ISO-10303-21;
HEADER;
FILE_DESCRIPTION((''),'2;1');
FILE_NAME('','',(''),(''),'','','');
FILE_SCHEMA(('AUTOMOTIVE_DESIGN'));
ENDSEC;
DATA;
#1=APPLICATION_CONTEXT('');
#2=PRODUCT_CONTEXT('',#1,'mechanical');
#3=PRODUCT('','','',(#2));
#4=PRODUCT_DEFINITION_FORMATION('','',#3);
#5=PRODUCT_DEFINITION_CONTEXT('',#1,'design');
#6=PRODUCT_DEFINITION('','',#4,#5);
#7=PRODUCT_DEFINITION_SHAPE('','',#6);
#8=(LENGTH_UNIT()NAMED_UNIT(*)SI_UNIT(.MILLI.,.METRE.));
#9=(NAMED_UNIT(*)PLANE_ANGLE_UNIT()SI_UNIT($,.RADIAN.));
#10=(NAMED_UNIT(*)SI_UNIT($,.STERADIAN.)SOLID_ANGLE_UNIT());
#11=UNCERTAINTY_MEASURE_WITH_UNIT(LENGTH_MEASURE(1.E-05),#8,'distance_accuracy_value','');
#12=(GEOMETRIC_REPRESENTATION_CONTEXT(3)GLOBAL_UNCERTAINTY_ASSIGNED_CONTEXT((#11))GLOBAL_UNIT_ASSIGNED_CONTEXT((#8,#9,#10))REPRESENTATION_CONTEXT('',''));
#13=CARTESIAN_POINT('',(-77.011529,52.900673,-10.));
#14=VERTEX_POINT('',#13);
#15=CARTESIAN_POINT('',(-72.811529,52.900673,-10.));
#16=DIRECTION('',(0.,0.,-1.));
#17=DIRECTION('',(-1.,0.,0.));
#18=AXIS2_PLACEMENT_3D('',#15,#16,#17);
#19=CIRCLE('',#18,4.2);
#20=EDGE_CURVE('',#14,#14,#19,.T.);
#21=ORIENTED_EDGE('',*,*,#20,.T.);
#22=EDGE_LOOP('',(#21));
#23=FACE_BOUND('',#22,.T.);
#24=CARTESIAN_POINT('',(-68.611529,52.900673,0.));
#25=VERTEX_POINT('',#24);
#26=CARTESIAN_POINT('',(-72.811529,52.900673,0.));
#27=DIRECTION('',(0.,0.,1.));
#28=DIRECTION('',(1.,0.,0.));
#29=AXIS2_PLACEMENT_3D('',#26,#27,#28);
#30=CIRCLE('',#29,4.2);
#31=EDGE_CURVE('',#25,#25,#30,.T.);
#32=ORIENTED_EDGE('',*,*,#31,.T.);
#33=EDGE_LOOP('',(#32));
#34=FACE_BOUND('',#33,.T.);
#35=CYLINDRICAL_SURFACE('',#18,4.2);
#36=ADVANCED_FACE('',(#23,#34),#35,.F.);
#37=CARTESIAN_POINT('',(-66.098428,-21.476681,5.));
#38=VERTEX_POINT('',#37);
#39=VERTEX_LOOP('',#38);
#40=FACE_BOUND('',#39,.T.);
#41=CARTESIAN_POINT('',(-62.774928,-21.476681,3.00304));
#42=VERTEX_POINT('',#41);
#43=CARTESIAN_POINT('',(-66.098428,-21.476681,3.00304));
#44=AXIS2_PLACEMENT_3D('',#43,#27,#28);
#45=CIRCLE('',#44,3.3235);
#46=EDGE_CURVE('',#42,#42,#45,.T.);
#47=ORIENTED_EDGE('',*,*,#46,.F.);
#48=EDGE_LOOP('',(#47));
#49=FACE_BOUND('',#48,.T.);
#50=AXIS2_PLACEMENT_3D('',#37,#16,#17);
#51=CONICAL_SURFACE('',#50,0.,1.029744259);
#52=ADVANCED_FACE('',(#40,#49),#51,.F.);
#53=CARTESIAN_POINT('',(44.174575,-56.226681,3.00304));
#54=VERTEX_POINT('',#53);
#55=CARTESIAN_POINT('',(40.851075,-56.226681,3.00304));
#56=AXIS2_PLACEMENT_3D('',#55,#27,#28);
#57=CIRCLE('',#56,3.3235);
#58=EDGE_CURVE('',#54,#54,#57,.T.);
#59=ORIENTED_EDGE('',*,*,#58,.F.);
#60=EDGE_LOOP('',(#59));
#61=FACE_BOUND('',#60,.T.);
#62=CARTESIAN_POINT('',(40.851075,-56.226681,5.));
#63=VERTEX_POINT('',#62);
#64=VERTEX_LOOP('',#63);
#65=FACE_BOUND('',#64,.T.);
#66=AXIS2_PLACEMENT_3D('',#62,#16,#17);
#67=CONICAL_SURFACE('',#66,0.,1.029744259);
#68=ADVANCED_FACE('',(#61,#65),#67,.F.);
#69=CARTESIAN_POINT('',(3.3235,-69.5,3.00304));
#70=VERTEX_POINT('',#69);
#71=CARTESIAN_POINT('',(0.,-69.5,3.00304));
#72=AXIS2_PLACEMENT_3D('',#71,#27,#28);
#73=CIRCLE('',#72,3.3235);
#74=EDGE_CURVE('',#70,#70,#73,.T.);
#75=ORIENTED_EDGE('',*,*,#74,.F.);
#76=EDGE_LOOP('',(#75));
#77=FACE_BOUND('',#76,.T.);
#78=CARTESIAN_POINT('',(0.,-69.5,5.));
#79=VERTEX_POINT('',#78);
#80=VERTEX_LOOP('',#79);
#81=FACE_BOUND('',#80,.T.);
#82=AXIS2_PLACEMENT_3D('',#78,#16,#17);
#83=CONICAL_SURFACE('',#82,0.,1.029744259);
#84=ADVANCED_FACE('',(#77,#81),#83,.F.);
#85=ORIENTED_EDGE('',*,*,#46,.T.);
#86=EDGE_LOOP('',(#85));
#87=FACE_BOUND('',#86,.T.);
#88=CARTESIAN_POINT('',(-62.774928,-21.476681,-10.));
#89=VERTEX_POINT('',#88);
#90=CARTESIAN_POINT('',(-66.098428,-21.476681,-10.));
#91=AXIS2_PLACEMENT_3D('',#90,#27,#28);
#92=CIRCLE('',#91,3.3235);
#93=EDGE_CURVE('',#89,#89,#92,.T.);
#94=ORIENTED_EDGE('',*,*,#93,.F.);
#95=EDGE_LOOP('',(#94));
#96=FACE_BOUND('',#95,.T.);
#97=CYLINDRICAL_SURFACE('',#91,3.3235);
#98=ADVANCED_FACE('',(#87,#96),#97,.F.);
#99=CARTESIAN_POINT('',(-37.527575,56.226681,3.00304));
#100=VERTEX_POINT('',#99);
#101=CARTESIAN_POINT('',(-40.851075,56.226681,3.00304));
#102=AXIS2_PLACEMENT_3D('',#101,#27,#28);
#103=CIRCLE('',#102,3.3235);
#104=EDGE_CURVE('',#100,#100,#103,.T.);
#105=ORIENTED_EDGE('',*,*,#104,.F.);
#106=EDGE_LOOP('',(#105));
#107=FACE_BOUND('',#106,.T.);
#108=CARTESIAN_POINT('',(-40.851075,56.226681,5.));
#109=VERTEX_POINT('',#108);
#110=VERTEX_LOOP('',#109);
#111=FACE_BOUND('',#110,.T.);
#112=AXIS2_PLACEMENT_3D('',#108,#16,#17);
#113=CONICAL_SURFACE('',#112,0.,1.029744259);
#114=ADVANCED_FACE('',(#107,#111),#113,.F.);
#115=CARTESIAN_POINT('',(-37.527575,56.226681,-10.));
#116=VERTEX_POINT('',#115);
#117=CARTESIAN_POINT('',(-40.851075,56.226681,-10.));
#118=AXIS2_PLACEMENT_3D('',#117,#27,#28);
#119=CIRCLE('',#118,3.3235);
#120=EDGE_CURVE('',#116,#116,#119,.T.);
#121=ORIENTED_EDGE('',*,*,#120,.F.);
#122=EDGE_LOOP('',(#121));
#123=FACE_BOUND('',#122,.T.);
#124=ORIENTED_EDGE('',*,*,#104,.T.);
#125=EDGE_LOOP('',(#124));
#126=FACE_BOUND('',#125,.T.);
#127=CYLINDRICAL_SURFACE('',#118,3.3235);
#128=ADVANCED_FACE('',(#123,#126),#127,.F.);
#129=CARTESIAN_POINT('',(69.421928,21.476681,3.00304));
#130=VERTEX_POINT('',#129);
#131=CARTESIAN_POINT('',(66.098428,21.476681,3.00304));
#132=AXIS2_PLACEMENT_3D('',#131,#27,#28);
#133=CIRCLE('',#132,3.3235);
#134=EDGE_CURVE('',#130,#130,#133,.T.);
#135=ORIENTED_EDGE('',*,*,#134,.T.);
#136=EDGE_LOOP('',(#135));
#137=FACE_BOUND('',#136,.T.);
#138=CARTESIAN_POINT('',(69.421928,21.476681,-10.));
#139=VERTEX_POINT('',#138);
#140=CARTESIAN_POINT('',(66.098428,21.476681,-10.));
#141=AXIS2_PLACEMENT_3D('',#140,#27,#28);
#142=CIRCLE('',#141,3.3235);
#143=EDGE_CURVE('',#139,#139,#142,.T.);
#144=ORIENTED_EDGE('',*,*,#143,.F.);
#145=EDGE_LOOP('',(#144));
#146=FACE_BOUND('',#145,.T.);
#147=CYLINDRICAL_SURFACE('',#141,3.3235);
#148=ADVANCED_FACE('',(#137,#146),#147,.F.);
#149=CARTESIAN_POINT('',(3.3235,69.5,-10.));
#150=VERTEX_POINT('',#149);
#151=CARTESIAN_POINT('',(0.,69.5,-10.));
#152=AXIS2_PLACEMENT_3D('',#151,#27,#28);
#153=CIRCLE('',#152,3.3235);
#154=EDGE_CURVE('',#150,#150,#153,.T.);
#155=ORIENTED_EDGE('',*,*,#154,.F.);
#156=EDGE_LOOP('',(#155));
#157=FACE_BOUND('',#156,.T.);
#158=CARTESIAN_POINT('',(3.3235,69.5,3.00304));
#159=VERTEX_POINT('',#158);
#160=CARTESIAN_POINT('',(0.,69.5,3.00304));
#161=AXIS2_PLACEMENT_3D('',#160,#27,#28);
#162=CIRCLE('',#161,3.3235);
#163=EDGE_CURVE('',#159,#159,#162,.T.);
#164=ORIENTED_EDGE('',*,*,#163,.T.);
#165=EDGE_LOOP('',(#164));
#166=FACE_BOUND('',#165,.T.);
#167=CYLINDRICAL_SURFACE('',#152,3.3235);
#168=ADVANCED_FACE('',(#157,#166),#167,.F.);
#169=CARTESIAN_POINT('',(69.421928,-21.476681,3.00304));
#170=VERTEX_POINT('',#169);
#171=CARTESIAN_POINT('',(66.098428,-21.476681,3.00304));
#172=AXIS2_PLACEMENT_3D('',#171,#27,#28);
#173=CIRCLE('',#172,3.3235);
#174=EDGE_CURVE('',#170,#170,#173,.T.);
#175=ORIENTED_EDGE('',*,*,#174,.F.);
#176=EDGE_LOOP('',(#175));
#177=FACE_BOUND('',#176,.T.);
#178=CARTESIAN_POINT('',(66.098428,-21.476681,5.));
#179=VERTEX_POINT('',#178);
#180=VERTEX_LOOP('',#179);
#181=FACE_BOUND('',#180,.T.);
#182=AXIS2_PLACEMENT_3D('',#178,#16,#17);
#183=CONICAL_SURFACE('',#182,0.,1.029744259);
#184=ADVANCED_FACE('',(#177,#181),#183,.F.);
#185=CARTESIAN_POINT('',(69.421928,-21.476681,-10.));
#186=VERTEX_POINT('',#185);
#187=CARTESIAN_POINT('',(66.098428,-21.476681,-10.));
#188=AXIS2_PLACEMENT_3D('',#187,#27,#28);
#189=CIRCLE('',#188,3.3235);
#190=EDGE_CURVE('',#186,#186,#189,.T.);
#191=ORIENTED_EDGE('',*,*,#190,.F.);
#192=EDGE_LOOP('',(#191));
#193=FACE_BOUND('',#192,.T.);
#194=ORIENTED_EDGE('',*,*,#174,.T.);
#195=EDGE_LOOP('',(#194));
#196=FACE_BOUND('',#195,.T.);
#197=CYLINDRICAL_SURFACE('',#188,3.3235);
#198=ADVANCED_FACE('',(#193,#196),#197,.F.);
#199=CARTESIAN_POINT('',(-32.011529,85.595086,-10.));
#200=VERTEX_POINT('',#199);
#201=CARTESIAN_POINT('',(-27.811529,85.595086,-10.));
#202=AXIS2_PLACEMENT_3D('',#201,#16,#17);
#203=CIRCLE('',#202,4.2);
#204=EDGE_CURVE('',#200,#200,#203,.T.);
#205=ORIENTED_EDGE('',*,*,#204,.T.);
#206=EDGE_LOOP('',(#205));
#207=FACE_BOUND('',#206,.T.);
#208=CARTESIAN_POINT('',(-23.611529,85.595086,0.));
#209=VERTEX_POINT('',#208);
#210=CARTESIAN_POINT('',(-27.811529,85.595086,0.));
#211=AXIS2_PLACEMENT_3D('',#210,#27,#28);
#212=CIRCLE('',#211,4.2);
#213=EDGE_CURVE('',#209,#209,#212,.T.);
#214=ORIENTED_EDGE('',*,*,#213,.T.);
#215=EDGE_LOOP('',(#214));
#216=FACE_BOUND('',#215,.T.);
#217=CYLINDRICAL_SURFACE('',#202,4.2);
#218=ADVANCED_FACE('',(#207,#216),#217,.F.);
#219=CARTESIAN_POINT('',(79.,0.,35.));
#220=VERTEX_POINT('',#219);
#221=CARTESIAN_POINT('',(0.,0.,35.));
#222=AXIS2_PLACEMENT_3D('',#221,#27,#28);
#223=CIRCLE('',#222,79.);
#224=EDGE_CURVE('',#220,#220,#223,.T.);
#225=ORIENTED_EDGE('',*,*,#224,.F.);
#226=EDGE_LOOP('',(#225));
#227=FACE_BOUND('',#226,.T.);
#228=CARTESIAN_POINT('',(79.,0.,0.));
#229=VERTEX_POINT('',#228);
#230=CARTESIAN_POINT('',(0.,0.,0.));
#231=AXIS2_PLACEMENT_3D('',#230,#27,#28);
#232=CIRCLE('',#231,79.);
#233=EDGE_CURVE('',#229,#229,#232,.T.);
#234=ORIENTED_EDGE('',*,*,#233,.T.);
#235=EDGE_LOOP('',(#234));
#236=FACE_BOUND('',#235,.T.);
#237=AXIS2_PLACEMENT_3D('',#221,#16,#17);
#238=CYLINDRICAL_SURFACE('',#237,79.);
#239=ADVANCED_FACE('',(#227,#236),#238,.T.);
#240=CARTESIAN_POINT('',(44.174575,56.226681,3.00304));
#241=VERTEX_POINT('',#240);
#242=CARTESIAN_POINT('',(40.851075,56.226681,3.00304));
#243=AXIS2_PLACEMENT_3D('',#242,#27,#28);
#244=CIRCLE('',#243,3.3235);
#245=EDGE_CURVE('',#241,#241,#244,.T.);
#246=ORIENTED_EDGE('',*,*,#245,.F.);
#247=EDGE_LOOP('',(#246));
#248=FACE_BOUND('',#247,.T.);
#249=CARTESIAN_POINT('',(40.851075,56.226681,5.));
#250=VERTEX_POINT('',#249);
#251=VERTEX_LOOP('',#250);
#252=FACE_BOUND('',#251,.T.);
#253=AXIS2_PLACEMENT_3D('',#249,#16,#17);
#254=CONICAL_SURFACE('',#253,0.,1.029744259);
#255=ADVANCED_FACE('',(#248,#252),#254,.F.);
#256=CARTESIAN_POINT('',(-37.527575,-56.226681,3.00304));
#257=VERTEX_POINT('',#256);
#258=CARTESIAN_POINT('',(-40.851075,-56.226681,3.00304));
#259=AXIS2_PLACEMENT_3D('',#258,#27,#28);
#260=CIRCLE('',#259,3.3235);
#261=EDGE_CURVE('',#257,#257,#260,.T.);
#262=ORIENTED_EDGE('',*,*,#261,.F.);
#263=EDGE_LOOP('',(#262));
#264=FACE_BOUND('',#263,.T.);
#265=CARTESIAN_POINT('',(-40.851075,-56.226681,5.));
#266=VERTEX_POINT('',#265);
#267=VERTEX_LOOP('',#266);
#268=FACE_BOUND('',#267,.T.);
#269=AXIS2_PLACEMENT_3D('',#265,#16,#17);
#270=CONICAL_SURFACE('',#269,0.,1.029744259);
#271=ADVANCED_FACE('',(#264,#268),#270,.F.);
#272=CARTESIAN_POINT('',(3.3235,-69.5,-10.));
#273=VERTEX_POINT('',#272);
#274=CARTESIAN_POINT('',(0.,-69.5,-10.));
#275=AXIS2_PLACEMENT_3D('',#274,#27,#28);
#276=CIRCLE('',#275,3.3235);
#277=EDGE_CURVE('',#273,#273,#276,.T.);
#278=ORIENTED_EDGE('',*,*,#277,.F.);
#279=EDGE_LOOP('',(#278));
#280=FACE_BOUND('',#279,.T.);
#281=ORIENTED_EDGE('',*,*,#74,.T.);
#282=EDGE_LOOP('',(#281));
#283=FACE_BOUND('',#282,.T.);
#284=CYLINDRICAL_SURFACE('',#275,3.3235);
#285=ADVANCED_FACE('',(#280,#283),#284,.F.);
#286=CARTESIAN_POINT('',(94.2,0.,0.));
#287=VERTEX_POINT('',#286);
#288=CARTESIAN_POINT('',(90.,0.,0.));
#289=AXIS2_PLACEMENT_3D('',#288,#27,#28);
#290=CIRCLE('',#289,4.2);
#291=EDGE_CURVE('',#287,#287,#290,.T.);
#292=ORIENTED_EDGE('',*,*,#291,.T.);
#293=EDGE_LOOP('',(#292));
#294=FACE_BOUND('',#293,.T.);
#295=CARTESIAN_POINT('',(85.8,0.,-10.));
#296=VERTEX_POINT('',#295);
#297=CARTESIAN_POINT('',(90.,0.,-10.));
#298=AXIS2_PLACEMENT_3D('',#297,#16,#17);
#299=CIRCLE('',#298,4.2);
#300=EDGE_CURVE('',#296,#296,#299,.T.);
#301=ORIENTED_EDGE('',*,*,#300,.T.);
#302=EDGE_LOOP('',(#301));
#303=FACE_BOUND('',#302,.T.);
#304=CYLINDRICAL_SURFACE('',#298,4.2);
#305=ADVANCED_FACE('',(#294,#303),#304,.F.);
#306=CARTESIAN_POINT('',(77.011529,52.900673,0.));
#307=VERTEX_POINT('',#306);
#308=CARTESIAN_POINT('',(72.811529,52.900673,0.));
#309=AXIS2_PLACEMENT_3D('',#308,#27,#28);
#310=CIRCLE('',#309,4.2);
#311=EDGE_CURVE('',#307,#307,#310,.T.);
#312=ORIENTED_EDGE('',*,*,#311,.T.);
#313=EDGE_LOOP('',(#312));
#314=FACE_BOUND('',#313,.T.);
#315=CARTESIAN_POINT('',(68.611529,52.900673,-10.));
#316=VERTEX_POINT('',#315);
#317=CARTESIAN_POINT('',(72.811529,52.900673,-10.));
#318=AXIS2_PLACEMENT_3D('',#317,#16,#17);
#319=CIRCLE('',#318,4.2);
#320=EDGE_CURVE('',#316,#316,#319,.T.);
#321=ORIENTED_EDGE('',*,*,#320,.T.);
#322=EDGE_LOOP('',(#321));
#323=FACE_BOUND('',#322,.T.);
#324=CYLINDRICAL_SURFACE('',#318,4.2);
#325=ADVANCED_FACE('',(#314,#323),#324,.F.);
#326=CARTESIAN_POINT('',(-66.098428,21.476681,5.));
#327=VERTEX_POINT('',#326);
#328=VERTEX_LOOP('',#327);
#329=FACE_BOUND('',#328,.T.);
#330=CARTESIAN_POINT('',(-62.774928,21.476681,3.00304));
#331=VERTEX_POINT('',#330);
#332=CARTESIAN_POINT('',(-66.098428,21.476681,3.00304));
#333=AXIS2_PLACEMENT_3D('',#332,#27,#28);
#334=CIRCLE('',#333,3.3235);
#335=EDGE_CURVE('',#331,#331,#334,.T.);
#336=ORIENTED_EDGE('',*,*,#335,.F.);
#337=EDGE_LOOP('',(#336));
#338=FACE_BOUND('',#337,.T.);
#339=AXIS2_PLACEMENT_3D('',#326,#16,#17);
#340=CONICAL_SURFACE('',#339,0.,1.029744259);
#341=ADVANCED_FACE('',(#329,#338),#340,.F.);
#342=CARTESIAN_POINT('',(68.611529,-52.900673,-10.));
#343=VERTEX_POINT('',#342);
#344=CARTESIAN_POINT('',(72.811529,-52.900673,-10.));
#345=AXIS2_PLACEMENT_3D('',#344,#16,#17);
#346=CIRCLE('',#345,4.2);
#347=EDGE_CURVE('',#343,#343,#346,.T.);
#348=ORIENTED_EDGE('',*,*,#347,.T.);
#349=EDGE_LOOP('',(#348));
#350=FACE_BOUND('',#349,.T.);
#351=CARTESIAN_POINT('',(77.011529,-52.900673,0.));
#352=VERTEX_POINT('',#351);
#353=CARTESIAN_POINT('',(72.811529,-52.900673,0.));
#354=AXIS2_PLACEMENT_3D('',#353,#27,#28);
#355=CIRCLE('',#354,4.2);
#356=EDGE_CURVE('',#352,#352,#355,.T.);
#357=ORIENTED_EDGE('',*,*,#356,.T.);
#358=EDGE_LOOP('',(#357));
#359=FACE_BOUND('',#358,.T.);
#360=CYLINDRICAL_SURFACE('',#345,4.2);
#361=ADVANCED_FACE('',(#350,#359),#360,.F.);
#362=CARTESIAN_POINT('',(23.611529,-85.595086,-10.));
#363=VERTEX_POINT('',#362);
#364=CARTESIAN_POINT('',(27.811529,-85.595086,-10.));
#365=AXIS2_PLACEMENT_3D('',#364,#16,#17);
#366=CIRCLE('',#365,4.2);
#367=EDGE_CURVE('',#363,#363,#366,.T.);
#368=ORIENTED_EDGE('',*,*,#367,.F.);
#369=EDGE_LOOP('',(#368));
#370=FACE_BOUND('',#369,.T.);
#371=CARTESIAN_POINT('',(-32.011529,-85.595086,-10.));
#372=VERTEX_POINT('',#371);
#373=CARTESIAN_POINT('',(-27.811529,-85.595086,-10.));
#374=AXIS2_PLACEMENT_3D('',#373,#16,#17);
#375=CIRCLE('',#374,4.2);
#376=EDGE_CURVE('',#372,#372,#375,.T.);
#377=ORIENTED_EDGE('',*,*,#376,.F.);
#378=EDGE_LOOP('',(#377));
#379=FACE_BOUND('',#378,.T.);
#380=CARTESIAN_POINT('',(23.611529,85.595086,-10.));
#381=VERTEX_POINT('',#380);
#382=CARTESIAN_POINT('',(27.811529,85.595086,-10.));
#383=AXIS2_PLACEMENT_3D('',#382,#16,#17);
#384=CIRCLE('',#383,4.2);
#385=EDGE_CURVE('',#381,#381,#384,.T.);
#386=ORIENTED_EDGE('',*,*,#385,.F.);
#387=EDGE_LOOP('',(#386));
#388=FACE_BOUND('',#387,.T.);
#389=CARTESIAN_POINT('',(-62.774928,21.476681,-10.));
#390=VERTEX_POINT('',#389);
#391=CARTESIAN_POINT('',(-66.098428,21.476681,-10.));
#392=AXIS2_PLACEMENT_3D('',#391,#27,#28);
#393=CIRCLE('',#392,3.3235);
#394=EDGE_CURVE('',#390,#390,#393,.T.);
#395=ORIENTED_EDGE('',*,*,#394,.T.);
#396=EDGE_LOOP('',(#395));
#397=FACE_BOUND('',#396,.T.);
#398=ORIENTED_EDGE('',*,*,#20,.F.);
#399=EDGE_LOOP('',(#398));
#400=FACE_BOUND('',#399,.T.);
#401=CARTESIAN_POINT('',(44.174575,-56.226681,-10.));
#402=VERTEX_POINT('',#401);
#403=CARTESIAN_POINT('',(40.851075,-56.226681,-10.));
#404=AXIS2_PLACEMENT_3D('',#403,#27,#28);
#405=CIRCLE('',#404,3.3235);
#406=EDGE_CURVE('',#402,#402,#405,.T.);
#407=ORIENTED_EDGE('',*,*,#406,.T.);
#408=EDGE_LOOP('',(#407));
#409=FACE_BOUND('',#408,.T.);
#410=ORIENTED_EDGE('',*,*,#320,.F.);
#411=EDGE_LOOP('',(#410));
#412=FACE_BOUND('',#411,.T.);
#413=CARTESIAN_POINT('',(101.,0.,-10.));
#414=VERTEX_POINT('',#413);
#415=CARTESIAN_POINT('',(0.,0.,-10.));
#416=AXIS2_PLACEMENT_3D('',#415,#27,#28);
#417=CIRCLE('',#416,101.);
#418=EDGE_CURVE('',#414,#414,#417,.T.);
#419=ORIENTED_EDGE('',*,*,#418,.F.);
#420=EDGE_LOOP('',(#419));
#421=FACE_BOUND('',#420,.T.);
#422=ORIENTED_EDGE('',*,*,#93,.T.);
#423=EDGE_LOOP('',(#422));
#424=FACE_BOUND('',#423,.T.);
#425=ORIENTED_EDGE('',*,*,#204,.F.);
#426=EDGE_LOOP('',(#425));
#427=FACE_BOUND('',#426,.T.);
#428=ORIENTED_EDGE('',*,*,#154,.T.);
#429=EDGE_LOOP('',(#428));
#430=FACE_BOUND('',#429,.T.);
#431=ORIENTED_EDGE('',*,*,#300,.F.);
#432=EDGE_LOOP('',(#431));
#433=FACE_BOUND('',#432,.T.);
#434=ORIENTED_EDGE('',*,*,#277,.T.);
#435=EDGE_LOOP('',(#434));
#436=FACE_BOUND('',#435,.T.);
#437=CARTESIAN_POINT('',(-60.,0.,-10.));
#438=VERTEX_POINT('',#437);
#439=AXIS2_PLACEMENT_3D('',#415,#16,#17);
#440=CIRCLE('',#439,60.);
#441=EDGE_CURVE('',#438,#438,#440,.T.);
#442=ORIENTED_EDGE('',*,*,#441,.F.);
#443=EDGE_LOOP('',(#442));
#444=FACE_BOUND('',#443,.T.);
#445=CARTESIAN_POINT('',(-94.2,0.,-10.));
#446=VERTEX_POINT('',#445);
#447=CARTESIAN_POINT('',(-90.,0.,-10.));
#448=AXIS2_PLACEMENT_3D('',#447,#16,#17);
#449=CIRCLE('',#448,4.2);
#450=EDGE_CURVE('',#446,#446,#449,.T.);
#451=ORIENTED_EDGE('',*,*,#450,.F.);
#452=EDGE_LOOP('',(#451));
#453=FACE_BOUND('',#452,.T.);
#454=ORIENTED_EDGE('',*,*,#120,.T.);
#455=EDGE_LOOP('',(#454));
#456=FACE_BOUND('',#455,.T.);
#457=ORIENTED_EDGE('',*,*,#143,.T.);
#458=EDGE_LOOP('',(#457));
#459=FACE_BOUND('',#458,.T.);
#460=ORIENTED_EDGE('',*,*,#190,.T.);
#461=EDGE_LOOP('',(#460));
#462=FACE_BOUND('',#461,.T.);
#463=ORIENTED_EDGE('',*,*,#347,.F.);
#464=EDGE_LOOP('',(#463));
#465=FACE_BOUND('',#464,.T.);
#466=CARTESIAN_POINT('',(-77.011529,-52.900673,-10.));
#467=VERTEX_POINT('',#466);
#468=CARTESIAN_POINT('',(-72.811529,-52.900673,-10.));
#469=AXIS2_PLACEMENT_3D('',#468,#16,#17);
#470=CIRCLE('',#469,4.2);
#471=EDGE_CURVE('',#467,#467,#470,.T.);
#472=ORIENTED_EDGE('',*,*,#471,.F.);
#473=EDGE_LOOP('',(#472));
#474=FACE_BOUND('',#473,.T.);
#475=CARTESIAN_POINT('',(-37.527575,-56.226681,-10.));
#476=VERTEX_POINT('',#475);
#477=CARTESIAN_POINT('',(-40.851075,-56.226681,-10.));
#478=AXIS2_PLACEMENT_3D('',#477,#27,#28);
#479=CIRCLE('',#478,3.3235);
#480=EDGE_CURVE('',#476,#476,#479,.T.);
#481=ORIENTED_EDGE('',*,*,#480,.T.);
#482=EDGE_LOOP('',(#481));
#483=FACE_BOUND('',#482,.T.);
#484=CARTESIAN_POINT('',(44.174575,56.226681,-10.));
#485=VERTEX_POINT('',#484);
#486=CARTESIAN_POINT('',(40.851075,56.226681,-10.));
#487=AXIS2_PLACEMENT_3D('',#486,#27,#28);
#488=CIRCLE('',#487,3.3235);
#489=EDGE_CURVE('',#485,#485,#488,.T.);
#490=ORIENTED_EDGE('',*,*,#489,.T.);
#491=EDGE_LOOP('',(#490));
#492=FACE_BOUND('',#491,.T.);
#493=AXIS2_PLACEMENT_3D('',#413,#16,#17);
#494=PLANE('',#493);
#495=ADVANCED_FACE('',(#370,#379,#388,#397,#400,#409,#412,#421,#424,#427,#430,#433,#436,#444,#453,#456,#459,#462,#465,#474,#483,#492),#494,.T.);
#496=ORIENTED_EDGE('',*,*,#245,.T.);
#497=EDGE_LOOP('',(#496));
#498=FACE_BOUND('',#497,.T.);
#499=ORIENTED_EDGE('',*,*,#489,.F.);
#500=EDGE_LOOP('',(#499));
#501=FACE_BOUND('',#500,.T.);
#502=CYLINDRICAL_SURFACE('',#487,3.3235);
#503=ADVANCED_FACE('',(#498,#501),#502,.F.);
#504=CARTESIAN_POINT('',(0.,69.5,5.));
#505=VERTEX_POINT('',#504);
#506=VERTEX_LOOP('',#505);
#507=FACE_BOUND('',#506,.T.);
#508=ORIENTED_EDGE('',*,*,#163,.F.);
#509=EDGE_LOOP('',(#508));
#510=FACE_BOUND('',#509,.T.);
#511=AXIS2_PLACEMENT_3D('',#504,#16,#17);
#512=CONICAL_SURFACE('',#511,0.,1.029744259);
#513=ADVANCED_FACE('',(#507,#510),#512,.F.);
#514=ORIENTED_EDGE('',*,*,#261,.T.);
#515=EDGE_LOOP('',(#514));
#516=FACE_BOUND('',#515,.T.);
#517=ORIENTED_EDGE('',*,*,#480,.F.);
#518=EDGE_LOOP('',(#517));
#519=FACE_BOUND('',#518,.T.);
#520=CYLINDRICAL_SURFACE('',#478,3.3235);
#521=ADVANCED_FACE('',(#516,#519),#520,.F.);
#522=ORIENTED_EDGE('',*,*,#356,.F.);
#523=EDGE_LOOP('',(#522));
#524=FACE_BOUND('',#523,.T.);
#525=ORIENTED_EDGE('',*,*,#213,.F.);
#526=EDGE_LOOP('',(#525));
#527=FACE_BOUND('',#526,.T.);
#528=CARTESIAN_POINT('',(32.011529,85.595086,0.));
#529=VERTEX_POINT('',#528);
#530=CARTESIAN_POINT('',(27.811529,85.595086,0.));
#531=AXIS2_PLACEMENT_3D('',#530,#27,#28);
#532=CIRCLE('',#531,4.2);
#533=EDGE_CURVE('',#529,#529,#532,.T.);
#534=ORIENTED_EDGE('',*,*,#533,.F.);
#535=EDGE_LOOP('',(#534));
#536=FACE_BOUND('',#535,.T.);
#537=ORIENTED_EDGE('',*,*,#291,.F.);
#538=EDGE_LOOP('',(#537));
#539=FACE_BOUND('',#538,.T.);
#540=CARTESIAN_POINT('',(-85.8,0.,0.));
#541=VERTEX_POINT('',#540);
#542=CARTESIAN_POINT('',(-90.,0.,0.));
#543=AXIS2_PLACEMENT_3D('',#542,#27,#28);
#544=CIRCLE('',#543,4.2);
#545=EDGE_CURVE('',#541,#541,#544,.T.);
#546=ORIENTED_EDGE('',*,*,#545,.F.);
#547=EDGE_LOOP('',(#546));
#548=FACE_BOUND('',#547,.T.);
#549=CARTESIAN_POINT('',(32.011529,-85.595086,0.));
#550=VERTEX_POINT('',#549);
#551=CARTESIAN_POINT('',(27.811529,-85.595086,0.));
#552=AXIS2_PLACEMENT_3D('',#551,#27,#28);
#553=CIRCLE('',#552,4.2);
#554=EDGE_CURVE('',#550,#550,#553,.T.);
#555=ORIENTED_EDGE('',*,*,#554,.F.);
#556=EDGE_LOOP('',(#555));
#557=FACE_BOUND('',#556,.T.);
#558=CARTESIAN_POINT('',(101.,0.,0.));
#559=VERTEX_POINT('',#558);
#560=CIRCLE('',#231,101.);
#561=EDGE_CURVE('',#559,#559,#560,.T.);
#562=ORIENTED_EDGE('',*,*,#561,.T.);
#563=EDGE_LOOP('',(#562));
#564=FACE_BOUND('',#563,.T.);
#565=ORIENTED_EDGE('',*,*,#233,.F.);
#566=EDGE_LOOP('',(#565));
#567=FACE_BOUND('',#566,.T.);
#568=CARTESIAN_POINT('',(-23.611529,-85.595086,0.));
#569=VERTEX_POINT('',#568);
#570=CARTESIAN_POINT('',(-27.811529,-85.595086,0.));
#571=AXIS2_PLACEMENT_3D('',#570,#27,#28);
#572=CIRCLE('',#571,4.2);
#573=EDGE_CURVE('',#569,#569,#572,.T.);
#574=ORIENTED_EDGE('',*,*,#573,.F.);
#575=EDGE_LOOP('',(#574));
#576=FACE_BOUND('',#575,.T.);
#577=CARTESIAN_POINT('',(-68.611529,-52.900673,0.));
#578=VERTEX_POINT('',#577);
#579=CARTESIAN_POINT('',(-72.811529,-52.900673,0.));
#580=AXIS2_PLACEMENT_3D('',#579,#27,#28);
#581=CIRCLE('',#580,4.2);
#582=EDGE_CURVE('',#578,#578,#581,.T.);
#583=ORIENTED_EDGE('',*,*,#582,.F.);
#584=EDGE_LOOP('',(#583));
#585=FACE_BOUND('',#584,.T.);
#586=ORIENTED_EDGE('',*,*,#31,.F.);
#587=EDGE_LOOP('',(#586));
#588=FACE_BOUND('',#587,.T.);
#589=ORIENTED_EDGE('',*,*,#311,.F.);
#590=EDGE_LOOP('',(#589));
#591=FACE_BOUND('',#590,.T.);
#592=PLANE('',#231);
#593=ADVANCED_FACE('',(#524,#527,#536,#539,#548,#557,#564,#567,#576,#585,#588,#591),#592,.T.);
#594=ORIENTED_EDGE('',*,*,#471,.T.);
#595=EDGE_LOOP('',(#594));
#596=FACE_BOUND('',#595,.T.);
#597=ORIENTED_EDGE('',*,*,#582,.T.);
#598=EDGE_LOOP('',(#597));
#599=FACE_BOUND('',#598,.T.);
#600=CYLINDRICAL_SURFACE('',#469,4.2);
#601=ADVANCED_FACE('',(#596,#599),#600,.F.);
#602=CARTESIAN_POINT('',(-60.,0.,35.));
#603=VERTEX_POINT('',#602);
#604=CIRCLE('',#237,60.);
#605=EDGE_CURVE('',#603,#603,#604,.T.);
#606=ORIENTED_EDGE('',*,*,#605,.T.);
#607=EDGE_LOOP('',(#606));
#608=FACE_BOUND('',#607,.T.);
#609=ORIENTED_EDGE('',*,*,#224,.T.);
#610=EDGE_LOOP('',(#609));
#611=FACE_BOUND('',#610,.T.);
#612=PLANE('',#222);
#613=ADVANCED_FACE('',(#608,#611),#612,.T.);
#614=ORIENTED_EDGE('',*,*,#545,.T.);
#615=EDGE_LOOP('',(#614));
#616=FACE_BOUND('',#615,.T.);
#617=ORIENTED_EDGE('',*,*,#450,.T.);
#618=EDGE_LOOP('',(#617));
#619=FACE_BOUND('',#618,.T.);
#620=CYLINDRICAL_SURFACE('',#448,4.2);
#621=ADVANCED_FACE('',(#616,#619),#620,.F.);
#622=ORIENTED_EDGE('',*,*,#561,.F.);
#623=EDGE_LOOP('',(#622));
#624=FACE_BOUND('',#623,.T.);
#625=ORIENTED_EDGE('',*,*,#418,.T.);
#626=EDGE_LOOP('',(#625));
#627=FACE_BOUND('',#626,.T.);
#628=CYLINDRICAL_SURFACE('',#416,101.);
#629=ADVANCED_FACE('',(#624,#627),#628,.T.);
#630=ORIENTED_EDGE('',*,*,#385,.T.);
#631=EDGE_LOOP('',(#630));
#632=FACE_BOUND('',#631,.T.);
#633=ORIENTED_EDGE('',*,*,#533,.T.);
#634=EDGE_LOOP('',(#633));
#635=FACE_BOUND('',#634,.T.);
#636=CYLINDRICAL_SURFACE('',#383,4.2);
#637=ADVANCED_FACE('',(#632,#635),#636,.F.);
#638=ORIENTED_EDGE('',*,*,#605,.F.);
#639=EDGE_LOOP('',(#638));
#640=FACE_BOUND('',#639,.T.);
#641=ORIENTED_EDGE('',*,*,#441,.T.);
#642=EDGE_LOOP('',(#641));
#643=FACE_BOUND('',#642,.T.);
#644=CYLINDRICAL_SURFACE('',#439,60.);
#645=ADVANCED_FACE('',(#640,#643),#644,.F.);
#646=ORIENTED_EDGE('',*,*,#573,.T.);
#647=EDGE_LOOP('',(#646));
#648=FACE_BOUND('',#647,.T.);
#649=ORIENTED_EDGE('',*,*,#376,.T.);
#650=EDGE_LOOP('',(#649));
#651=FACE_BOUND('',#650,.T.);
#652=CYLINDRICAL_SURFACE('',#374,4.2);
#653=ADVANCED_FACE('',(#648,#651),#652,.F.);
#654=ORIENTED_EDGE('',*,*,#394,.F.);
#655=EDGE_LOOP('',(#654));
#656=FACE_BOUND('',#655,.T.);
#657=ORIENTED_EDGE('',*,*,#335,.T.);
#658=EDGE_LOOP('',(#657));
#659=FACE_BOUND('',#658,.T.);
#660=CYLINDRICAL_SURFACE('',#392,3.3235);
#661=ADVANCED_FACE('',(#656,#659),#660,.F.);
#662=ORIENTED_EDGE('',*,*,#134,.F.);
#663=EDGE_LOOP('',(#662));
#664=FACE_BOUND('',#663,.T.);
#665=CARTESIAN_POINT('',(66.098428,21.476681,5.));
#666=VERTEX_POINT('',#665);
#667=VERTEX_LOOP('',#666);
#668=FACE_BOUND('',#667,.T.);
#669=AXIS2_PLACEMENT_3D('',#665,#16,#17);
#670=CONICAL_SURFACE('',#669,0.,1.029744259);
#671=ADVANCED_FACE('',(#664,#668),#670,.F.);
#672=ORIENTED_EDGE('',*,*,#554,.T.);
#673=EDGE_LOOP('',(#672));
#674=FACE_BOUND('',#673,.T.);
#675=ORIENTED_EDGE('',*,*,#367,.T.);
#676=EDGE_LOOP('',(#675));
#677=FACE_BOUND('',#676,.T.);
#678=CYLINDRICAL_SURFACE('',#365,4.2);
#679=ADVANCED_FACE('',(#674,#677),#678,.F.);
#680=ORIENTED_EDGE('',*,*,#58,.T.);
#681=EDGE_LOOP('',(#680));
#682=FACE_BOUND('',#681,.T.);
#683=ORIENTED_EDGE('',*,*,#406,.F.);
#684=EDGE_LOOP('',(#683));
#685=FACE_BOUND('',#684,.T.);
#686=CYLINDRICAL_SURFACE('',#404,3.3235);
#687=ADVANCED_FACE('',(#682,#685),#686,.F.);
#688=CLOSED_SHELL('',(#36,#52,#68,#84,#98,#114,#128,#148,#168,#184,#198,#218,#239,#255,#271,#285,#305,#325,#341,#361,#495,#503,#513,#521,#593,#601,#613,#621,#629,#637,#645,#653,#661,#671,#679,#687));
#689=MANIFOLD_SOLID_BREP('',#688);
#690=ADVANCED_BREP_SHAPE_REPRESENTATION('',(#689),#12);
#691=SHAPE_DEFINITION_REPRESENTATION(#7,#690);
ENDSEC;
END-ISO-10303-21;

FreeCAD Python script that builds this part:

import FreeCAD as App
import Part
import Sketcher
Q = App.Units.Quantity

doc = App.newDocument("Part")
body = doc.addObject("PartDesign::Body", "Body")

sketch1 = body.newObject("Sketcher::SketchObject", "Sketch")
sketch1.AttachmentSupport = (doc.getObject("XZ_Plane"), [""])
sketch1.MapMode = "FlatFace"
sketch1.addGeometry([
    Part.LineSegment(App.Vector(0, -10, 0), App.Vector(0, 0, 0)),
    Part.LineSegment(App.Vector(0, 0, 0), App.Vector(101, 0, 0)),
    Part.LineSegment(App.Vector(101, 0, 0), App.Vector(101, -10, 0)),
    Part.LineSegment(App.Vector(101, -10, 0), App.Vector(0, -10, 0)),
], False)
sketch1.addConstraint([
    Sketcher.Constraint("Coincident", 0, 2, 1, 1),
    Sketcher.Constraint("Coincident", 1, 2, 2, 1),
    Sketcher.Constraint("Coincident", 2, 2, 3, 1),
    Sketcher.Constraint("Coincident", 3, 2, 0, 1),
    Sketcher.Constraint("Vertical", 0),
    Sketcher.Constraint("Horizontal", 1),
    Sketcher.Constraint("Vertical", 2),
    Sketcher.Constraint("Horizontal", 3),
    Sketcher.Constraint("Coincident", 0, 2, -1, 1),
    Sketcher.Constraint("DistanceX", 1, 1, 1, 2, Q("101 mm")),
    Sketcher.Constraint("DistanceY", 0, 1, 0, 2, Q("10 mm")),
])
revolution = body.newObject("PartDesign::Revolution", "Revolution")
revolution.Profile = sketch1
revolution.ReferenceAxis = (sketch1, ["V_Axis"])
revolution.Angle = 360

sketch2 = body.newObject("Sketcher::SketchObject", "Sketch001")
sketch2.AttachmentSupport = (doc.getObject("XY_Plane"), [""])
sketch2.MapMode = "FlatFace"
sketch2.addGeometry(Part.Circle(App.Vector(0, 0, 0), App.Vector(0, 0, 1), 79), False)
sketch2.addConstraint([
    Sketcher.Constraint("Coincident", 0, 3, -1, 1),
    Sketcher.Constraint("Diameter", 0, Q("158 mm")),
])
pad1 = body.newObject("PartDesign::Pad", "Pad")
pad1.Profile = sketch2
pad1.Length = 35

sketch3 = body.newObject("Sketcher::SketchObject", "Sketch002")
sketch3.AttachmentSupport = (doc.getObject("XZ_Plane"), [""])
sketch3.MapMode = "FlatFace"
sketch3.AttachmentOffset = App.Placement(App.Vector(0, 0, -69.5), App.Rotation())
sketch3.addGeometry([
    Part.LineSegment(App.Vector(3.3235, -10, 0), App.Vector(0, -10, 0)),
    Part.LineSegment(App.Vector(0, -10, 0), App.Vector(0, 5, 0)),
    Part.LineSegment(App.Vector(0, 5, 0), App.Vector(3.3235, 3.00304, 0)),
    Part.LineSegment(App.Vector(3.3235, 3.00304, 0), App.Vector(3.3235, -10, 0)),
], False)
sketch3.addConstraint([
    Sketcher.Constraint("Coincident", 0, 2, 1, 1),
    Sketcher.Constraint("Coincident", 1, 2, 2, 1),
    Sketcher.Constraint("Coincident", 2, 2, 3, 1),
    Sketcher.Constraint("Coincident", 3, 2, 0, 1),
    Sketcher.Constraint("Horizontal", 0),
    Sketcher.Constraint("Vertical", 1),
    Sketcher.Constraint("Vertical", 3),
    Sketcher.Constraint("PointOnObject", 0, 2, -2),
    Sketcher.Constraint("DistanceY", 1, 1, 1, 2, Q("15 mm")),
    Sketcher.Constraint("Angle", 2, Q("-31 deg")),
    Sketcher.Constraint("DistanceY", 0, 2, -1, 1, Q("10 mm")),
    Sketcher.Constraint("DistanceX", 0, 2, 0, 1, Q("3.3235 mm")),
])
groove = body.newObject("PartDesign::Groove", "Groove")
groove.Profile = sketch3
groove.ReferenceAxis = (sketch3, ["V_Axis"])
groove.Angle = 360

sketch4 = body.newObject("Sketcher::SketchObject", "Sketch003")
sketch4.AttachmentSupport = (doc.getObject("XZ_Plane"), [""])
sketch4.MapMode = "FlatFace"
sketch4.AttachmentOffset = App.Placement(App.Vector(0, 0, -56.226681), App.Rotation())
sketch4.addGeometry([
    Part.LineSegment(App.Vector(44.174575, -10, 0), App.Vector(40.851075, -10, 0)),
    Part.LineSegment(App.Vector(40.851075, -10, 0), App.Vector(40.851075, 5, 0)),
    Part.LineSegment(App.Vector(40.851075, 5, 0), App.Vector(44.174575, 3.00304, 0)),
    Part.LineSegment(App.Vector(44.174575, 3.00304, 0), App.Vector(44.174575, -10, 0)),
], False)
sketch4.addGeometry(Part.LineSegment(App.Vector(40.851075, -10, 0), App.Vector(40.851075, 5, 0)), True)
sketch4.addConstraint([
    Sketcher.Constraint("Coincident", 0, 2, 1, 1),
    Sketcher.Constraint("Coincident", 1, 2, 2, 1),
    Sketcher.Constraint("Coincident", 2, 2, 3, 1),
    Sketcher.Constraint("Coincident", 3, 2, 0, 1),
    Sketcher.Constraint("Horizontal", 0),
    Sketcher.Constraint("Vertical", 1),
    Sketcher.Constraint("Vertical", 3),
    Sketcher.Constraint("Vertical", 4),
    Sketcher.Constraint("Coincident", 4, 1, 0, 2),
    Sketcher.Constraint("Equal", 1, 4),
    Sketcher.Constraint("DistanceY", 1, 1, 1, 2, Q("15 mm")),
    Sketcher.Constraint("Angle", 2, Q("-31 deg")),
    Sketcher.Constraint("DistanceY", 0, 2, -1, 1, Q("10 mm")),
    Sketcher.Constraint("DistanceX", 0, 2, 0, 1, Q("3.3235 mm")),
    Sketcher.Constraint("DistanceX", -1, 1, 0, 2, Q("40.851075 mm")),
])
groove2 = body.newObject("PartDesign::Groove", "Groove001")
groove2.Profile = sketch4
groove2.ReferenceAxis = (sketch4, ["Axis0"])
groove2.Angle = 360

sketch5 = body.newObject("Sketcher::SketchObject", "Sketch004")
sketch5.AttachmentSupport = (doc.getObject("XZ_Plane"), [""])
sketch5.MapMode = "FlatFace"
sketch5.AttachmentOffset = App.Placement(App.Vector(0, 0, -21.476681), App.Rotation())
sketch5.addGeometry([
    Part.LineSegment(App.Vector(69.421928, -10, 0), App.Vector(66.098428, -10, 0)),
    Part.LineSegment(App.Vector(66.098428, -10, 0), App.Vector(66.098428, 5, 0)),
    Part.LineSegment(App.Vector(66.098428, 5, 0), App.Vector(69.421928, 3.00304, 0)),
    Part.LineSegment(App.Vector(69.421928, 3.00304, 0), App.Vector(69.421928, -10, 0)),
], False)
sketch5.addGeometry(Part.LineSegment(App.Vector(66.098428, -10, 0), App.Vector(66.098428, 5, 0)), True)
sketch5.addConstraint([
    Sketcher.Constraint("Coincident", 0, 2, 1, 1),
    Sketcher.Constraint("Coincident", 1, 2, 2, 1),
    Sketcher.Constraint("Coincident", 2, 2, 3, 1),
    Sketcher.Constraint("Coincident", 3, 2, 0, 1),
    Sketcher.Constraint("Horizontal", 0),
    Sketcher.Constraint("Vertical", 1),
    Sketcher.Constraint("Vertical", 3),
    Sketcher.Constraint("Vertical", 4),
    Sketcher.Constraint("Coincident", 4, 1, 0, 2),
    Sketcher.Constraint("Equal", 1, 4),
    Sketcher.Constraint("DistanceY", 1, 1, 1, 2, Q("15 mm")),
    Sketcher.Constraint("Angle", 2, Q("-31 deg")),
    Sketcher.Constraint("DistanceY", 0, 2, -1, 1, Q("10 mm")),
    Sketcher.Constraint("DistanceX", 0, 2, 0, 1, Q("3.3235 mm")),
    Sketcher.Constraint("DistanceX", -1, 1, 0, 2, Q("66.098428 mm")),
])
groove3 = body.newObject("PartDesign::Groove", "Groove002")
groove3.Profile = sketch5
groove3.ReferenceAxis = (sketch5, ["Axis0"])
groove3.Angle = 360

sketch6 = body.newObject("Sketcher::SketchObject", "Sketch005")
sketch6.AttachmentSupport = (doc.getObject("XZ_Plane"), [""])
sketch6.MapMode = "FlatFace"
sketch6.AttachmentOffset = App.Placement(App.Vector(0, 0, 21.476681), App.Rotation())
sketch6.addGeometry([
    Part.LineSegment(App.Vector(69.421928, -10, 0), App.Vector(66.098428, -10, 0)),
    Part.LineSegment(App.Vector(66.098428, -10, 0), App.Vector(66.098428, 5, 0)),
    Part.LineSegment(App.Vector(66.098428, 5, 0), App.Vector(69.421928, 3.00304, 0)),
    Part.LineSegment(App.Vector(69.421928, 3.00304, 0), App.Vector(69.421928, -10, 0)),
], False)
sketch6.addGeometry(Part.LineSegment(App.Vector(66.098428, -10, 0), App.Vector(66.098428, 5, 0)), True)
sketch6.addConstraint([
    Sketcher.Constraint("Coincident", 0, 2, 1, 1),
    Sketcher.Constraint("Coincident", 1, 2, 2, 1),
    Sketcher.Constraint("Coincident", 2, 2, 3, 1),
    Sketcher.Constraint("Coincident", 3, 2, 0, 1),
    Sketcher.Constraint("Horizontal", 0),
    Sketcher.Constraint("Vertical", 1),
    Sketcher.Constraint("Vertical", 3),
    Sketcher.Constraint("Vertical", 4),
    Sketcher.Constraint("Coincident", 4, 1, 0, 2),
    Sketcher.Constraint("Equal", 1, 4),
    Sketcher.Constraint("DistanceY", 1, 1, 1, 2, Q("15 mm")),
    Sketcher.Constraint("Angle", 2, Q("-31 deg")),
    Sketcher.Constraint("DistanceY", 0, 2, -1, 1, Q("10 mm")),
    Sketcher.Constraint("DistanceX", 0, 2, 0, 1, Q("3.3235 mm")),
    Sketcher.Constraint("DistanceX", -1, 1, 0, 2, Q("66.098428 mm")),
])
groove4 = body.newObject("PartDesign::Groove", "Groove003")
groove4.Profile = sketch6
groove4.ReferenceAxis = (sketch6, ["Axis0"])
groove4.Angle = 360

sketch7 = body.newObject("Sketcher::SketchObject", "Sketch006")
sketch7.AttachmentSupport = (doc.getObject("XZ_Plane"), [""])
sketch7.MapMode = "FlatFace"
sketch7.AttachmentOffset = App.Placement(App.Vector(0, 0, 56.226681), App.Rotation())
sketch7.addGeometry([
    Part.LineSegment(App.Vector(44.174575, -10, 0), App.Vector(40.851075, -10, 0)),
    Part.LineSegment(App.Vector(40.851075, -10, 0), App.Vector(40.851075, 5, 0)),
    Part.LineSegment(App.Vector(40.851075, 5, 0), App.Vector(44.174575, 3.00304, 0)),
    Part.LineSegment(App.Vector(44.174575, 3.00304, 0), App.Vector(44.174575, -10, 0)),
], False)
sketch7.addGeometry(Part.LineSegment(App.Vector(40.851075, -10, 0), App.Vector(40.851075, 5, 0)), True)
sketch7.addConstraint([
    Sketcher.Constraint("Coincident", 0, 2, 1, 1),
    Sketcher.Constraint("Coincident", 1, 2, 2, 1),
    Sketcher.Constraint("Coincident", 2, 2, 3, 1),
    Sketcher.Constraint("Coincident", 3, 2, 0, 1),
    Sketcher.Constraint("Horizontal", 0),
    Sketcher.Constraint("Vertical", 1),
    Sketcher.Constraint("Vertical", 3),
    Sketcher.Constraint("Vertical", 4),
    Sketcher.Constraint("Coincident", 4, 1, 0, 2),
    Sketcher.Constraint("Equal", 1, 4),
    Sketcher.Constraint("DistanceY", 1, 1, 1, 2, Q("15 mm")),
    Sketcher.Constraint("Angle", 2, Q("-31 deg")),
    Sketcher.Constraint("DistanceY", 0, 2, -1, 1, Q("10 mm")),
    Sketcher.Constraint("DistanceX", 0, 2, 0, 1, Q("3.3235 mm")),
    Sketcher.Constraint("DistanceX", -1, 1, 0, 2, Q("40.851075 mm")),
])
groove5 = body.newObject("PartDesign::Groove", "Groove004")
groove5.Profile = sketch7
groove5.ReferenceAxis = (sketch7, ["Axis0"])
groove5.Angle = 360

sketch8 = body.newObject("Sketcher::SketchObject", "Sketch007")
sketch8.AttachmentSupport = (doc.getObject("XZ_Plane"), [""])
sketch8.MapMode = "FlatFace"
sketch8.AttachmentOffset = App.Placement(App.Vector(0, 0, 69.5), App.Rotation())
sketch8.addGeometry([
    Part.LineSegment(App.Vector(3.3235, -10, 0), App.Vector(0, -10, 0)),
    Part.LineSegment(App.Vector(0, -10, 0), App.Vector(0, 5, 0)),
    Part.LineSegment(App.Vector(0, 5, 0), App.Vector(3.3235, 3.00304, 0)),
    Part.LineSegment(App.Vector(3.3235, 3.00304, 0), App.Vector(3.3235, -10, 0)),
], False)
sketch8.addConstraint([
    Sketcher.Constraint("Coincident", 0, 2, 1, 1),
    Sketcher.Constraint("Coincident", 1, 2, 2, 1),
    Sketcher.Constraint("Coincident", 2, 2, 3, 1),
    Sketcher.Constraint("Coincident", 3, 2, 0, 1),
    Sketcher.Constraint("Horizontal", 0),
    Sketcher.Constraint("Vertical", 1),
    Sketcher.Constraint("Vertical", 3),
    Sketcher.Constraint("PointOnObject", 0, 2, -2),
    Sketcher.Constraint("DistanceY", 1, 1, 1, 2, Q("15 mm")),
    Sketcher.Constraint("Angle", 2, Q("-31 deg")),
    Sketcher.Constraint("DistanceY", 0, 2, -1, 1, Q("10 mm")),
    Sketcher.Constraint("DistanceX", 0, 2, 0, 1, Q("3.3235 mm")),
])
groove6 = body.newObject("PartDesign::Groove", "Groove005")
groove6.Profile = sketch8
groove6.ReferenceAxis = (sketch8, ["V_Axis"])
groove6.Angle = 360

sketch9 = body.newObject("Sketcher::SketchObject", "Sketch008")
sketch9.AttachmentSupport = (doc.getObject("XZ_Plane"), [""])
sketch9.MapMode = "FlatFace"
sketch9.AttachmentOffset = App.Placement(App.Vector(0, 0, 56.226681), App.Rotation())
sketch9.addGeometry([
    Part.LineSegment(App.Vector(-37.527575, -10, 0), App.Vector(-40.851075, -10, 0)),
    Part.LineSegment(App.Vector(-40.851075, -10, 0), App.Vector(-40.851075, 5, 0)),
    Part.LineSegment(App.Vector(-40.851075, 5, 0), App.Vector(-37.527575, 3.00304, 0)),
    Part.LineSegment(App.Vector(-37.527575, 3.00304, 0), App.Vector(-37.527575, -10, 0)),
], False)
sketch9.addGeometry(Part.LineSegment(App.Vector(-40.851075, -10, 0), App.Vector(-40.851075, 5, 0)), True)
sketch9.addConstraint([
    Sketcher.Constraint("Coincident", 0, 2, 1, 1),
    Sketcher.Constraint("Coincident", 1, 2, 2, 1),
    Sketcher.Constraint("Coincident", 2, 2, 3, 1),
    Sketcher.Constraint("Coincident", 3, 2, 0, 1),
    Sketcher.Constraint("Horizontal", 0),
    Sketcher.Constraint("Vertical", 1),
    Sketcher.Constraint("Vertical", 3),
    Sketcher.Constraint("Vertical", 4),
    Sketcher.Constraint("Coincident", 4, 1, 0, 2),
    Sketcher.Constraint("Equal", 1, 4),
    Sketcher.Constraint("DistanceY", 1, 1, 1, 2, Q("15 mm")),
    Sketcher.Constraint("Angle", 2, Q("-31 deg")),
    Sketcher.Constraint("DistanceY", 0, 2, -1, 1, Q("10 mm")),
    Sketcher.Constraint("DistanceX", 0, 2, 0, 1, Q("3.3235 mm")),
    Sketcher.Constraint("DistanceX", 0, 2, -1, 1, Q("40.851075 mm")),
])
groove7 = body.newObject("PartDesign::Groove", "Groove006")
groove7.Profile = sketch9
groove7.ReferenceAxis = (sketch9, ["Axis0"])
groove7.Angle = 360

sketch10 = body.newObject("Sketcher::SketchObject", "Sketch009")
sketch10.AttachmentSupport = (doc.getObject("XZ_Plane"), [""])
sketch10.MapMode = "FlatFace"
sketch10.AttachmentOffset = App.Placement(App.Vector(0, 0, 21.476681), App.Rotation())
sketch10.addGeometry([
    Part.LineSegment(App.Vector(-62.774928, -10, 0), App.Vector(-66.098428, -10, 0)),
    Part.LineSegment(App.Vector(-66.098428, -10, 0), App.Vector(-66.098428, 5, 0)),
    Part.LineSegment(App.Vector(-66.098428, 5, 0), App.Vector(-62.774928, 3.00304, 0)),
    Part.LineSegment(App.Vector(-62.774928, 3.00304, 0), App.Vector(-62.774928, -10, 0)),
], False)
sketch10.addGeometry(Part.LineSegment(App.Vector(-66.098428, -10, 0), App.Vector(-66.098428, 5, 0)), True)
sketch10.addConstraint([
    Sketcher.Constraint("Coincident", 0, 2, 1, 1),
    Sketcher.Constraint("Coincident", 1, 2, 2, 1),
    Sketcher.Constraint("Coincident", 2, 2, 3, 1),
    Sketcher.Constraint("Coincident", 3, 2, 0, 1),
    Sketcher.Constraint("Horizontal", 0),
    Sketcher.Constraint("Vertical", 1),
    Sketcher.Constraint("Vertical", 3),
    Sketcher.Constraint("Vertical", 4),
    Sketcher.Constraint("Coincident", 4, 1, 0, 2),
    Sketcher.Constraint("Equal", 1, 4),
    Sketcher.Constraint("DistanceY", 1, 1, 1, 2, Q("15 mm")),
    Sketcher.Constraint("Angle", 2, Q("-31 deg")),
    Sketcher.Constraint("DistanceY", 0, 2, -1, 1, Q("10 mm")),
    Sketcher.Constraint("DistanceX", 0, 2, 0, 1, Q("3.3235 mm")),
    Sketcher.Constraint("DistanceX", 0, 2, -1, 1, Q("66.098428 mm")),
])
groove8 = body.newObject("PartDesign::Groove", "Groove007")
groove8.Profile = sketch10
groove8.ReferenceAxis = (sketch10, ["Axis0"])
groove8.Angle = 360

sketch11 = body.newObject("Sketcher::SketchObject", "Sketch010")
sketch11.AttachmentSupport = (doc.getObject("XZ_Plane"), [""])
sketch11.MapMode = "FlatFace"
sketch11.AttachmentOffset = App.Placement(App.Vector(0, 0, -21.476681), App.Rotation())
sketch11.addGeometry([
    Part.LineSegment(App.Vector(-62.774928, -10, 0), App.Vector(-66.098428, -10, 0)),
    Part.LineSegment(App.Vector(-66.098428, -10, 0), App.Vector(-66.098428, 5, 0)),
    Part.LineSegment(App.Vector(-66.098428, 5, 0), App.Vector(-62.774928, 3.00304, 0)),
    Part.LineSegment(App.Vector(-62.774928, 3.00304, 0), App.Vector(-62.774928, -10, 0)),
], False)
sketch11.addGeometry(Part.LineSegment(App.Vector(-66.098428, -10, 0), App.Vector(-66.098428, 5, 0)), True)
sketch11.addConstraint([
    Sketcher.Constraint("Coincident", 0, 2, 1, 1),
    Sketcher.Constraint("Coincident", 1, 2, 2, 1),
    Sketcher.Constraint("Coincident", 2, 2, 3, 1),
    Sketcher.Constraint("Coincident", 3, 2, 0, 1),
    Sketcher.Constraint("Horizontal", 0),
    Sketcher.Constraint("Vertical", 1),
    Sketcher.Constraint("Vertical", 3),
    Sketcher.Constraint("Vertical", 4),
    Sketcher.Constraint("Coincident", 4, 1, 0, 2),
    Sketcher.Constraint("Equal", 1, 4),
    Sketcher.Constraint("DistanceY", 1, 1, 1, 2, Q("15 mm")),
    Sketcher.Constraint("Angle", 2, Q("-31 deg")),
    Sketcher.Constraint("DistanceY", 0, 2, -1, 1, Q("10 mm")),
    Sketcher.Constraint("DistanceX", 0, 2, 0, 1, Q("3.3235 mm")),
    Sketcher.Constraint("DistanceX", 0, 2, -1, 1, Q("66.098428 mm")),
])
groove9 = body.newObject("PartDesign::Groove", "Groove008")
groove9.Profile = sketch11
groove9.ReferenceAxis = (sketch11, ["Axis0"])
groove9.Angle = 360

sketch12 = body.newObject("Sketcher::SketchObject", "Sketch011")
sketch12.AttachmentSupport = (doc.getObject("XZ_Plane"), [""])
sketch12.MapMode = "FlatFace"
sketch12.AttachmentOffset = App.Placement(App.Vector(0, 0, -56.226681), App.Rotation())
sketch12.addGeometry([
    Part.LineSegment(App.Vector(-37.527575, -10, 0), App.Vector(-40.851075, -10, 0)),
    Part.LineSegment(App.Vector(-40.851075, -10, 0), App.Vector(-40.851075, 5, 0)),
    Part.LineSegment(App.Vector(-40.851075, 5, 0), App.Vector(-37.527575, 3.00304, 0)),
    Part.LineSegment(App.Vector(-37.527575, 3.00304, 0), App.Vector(-37.527575, -10, 0)),
], False)
sketch12.addGeometry(Part.LineSegment(App.Vector(-40.851075, -10, 0), App.Vector(-40.851075, 5, 0)), True)
sketch12.addConstraint([
    Sketcher.Constraint("Coincident", 0, 2, 1, 1),
    Sketcher.Constraint("Coincident", 1, 2, 2, 1),
    Sketcher.Constraint("Coincident", 2, 2, 3, 1),
    Sketcher.Constraint("Coincident", 3, 2, 0, 1),
    Sketcher.Constraint("Horizontal", 0),
    Sketcher.Constraint("Vertical", 1),
    Sketcher.Constraint("Vertical", 3),
    Sketcher.Constraint("Vertical", 4),
    Sketcher.Constraint("Coincident", 4, 1, 0, 2),
    Sketcher.Constraint("Equal", 1, 4),
    Sketcher.Constraint("DistanceY", 1, 1, 1, 2, Q("15 mm")),
    Sketcher.Constraint("Angle", 2, Q("-31 deg")),
    Sketcher.Constraint("DistanceY", 0, 2, -1, 1, Q("10 mm")),
    Sketcher.Constraint("DistanceX", 0, 2, 0, 1, Q("3.3235 mm")),
    Sketcher.Constraint("DistanceX", 0, 2, -1, 1, Q("40.851075 mm")),
])
groove10 = body.newObject("PartDesign::Groove", "Groove009")
groove10.Profile = sketch12
groove10.ReferenceAxis = (sketch12, ["Axis0"])
groove10.Angle = 360

sketch13 = body.newObject("Sketcher::SketchObject", "Sketch012")
sketch13.AttachmentSupport = (doc.getObject("XY_Plane"), [""])
sketch13.MapMode = "FlatFace"
sketch13.AttachmentOffset = App.Placement(App.Vector(0, 0, -10), App.Rotation())
sketch13.addGeometry([
    Part.Circle(App.Vector(-27.811529, 85.595086, 0), App.Vector(0, 0, 1), 4.2),
    Part.Circle(App.Vector(-72.811529, 52.900673, 0), App.Vector(0, 0, 1), 4.2),
    Part.Circle(App.Vector(-90, 0, 0), App.Vector(0, 0, 1), 4.2),
    Part.Circle(App.Vector(-72.811529, -52.900673, 0), App.Vector(0, 0, 1), 4.2),
    Part.Circle(App.Vector(-27.811529, -85.595086, 0), App.Vector(0, 0, 1), 4.2),
    Part.Circle(App.Vector(27.811529, -85.595086, 0), App.Vector(0, 0, 1), 4.2),
    Part.Circle(App.Vector(72.811529, -52.900673, 0), App.Vector(0, 0, 1), 4.2),
    Part.Circle(App.Vector(90, 0, 0), App.Vector(0, 0, 1), 4.2),
    Part.Circle(App.Vector(72.811529, 52.900673, 0), App.Vector(0, 0, 1), 4.2),
    Part.Circle(App.Vector(27.811529, 85.595086, 0), App.Vector(0, 0, 1), 4.2),
], False)
sketch13.addConstraint([
    Sketcher.Constraint("Equal", 0, 1),
    Sketcher.Constraint("Equal", 1, 2),
    Sketcher.Constraint("Equal", 2, 3),
    Sketcher.Constraint("Equal", 3, 4),
    Sketcher.Constraint("Equal", 4, 5),
    Sketcher.Constraint("Equal", 5, 6),
    Sketcher.Constraint("Equal", 6, 7),
    Sketcher.Constraint("Equal", 7, 8),
    Sketcher.Constraint("Equal", 8, 9),
    Sketcher.Constraint("Symmetric", 0, 3, 5, 3, -1, 1),
    Sketcher.Constraint("Symmetric", 1, 3, 6, 3, -1, 1),
    Sketcher.Constraint("Symmetric", 2, 3, 7, 3, -1, 1),
    Sketcher.Constraint("Symmetric", 3, 3, 8, 3, -1, 1),
    Sketcher.Constraint("Symmetric", 4, 3, 9, 3, -1, 1),
    Sketcher.Constraint("Symmetric", 4, 3, 5, 3, -2),
    Sketcher.Constraint("Symmetric", 3, 3, 6, 3, -2),
    Sketcher.Constraint("PointOnObject", 2, 3, -1),
    Sketcher.Constraint("Diameter", 0, Q("8.4 mm")),
    Sketcher.Constraint("DistanceX", 2, 3, -1, 1, Q("90 mm")),
    Sketcher.Constraint("DistanceX", 1, 3, 0, 3, Q("45 mm")),
    Sketcher.Constraint("DistanceX", 0, 3, -1, 1, Q("27.811529 mm")),
    Sketcher.Constraint("DistanceY", 3, 3, 0, 3, Q("138.495759 mm")),
    Sketcher.Constraint("DistanceY", -1, 1, 0, 3, Q("85.595086 mm")),
])
doc.recompute()
hole = body.newObject("PartDesign::Hole", "Hole")
hole.Profile = sketch13
hole.ThreadType = "None"
hole.Diameter = 8.4
hole.DepthType = "Dimension"
hole.Depth = 45
hole.DrillPoint = "Flat"
hole.Reversed = True

sketch14 = body.newObject("Sketcher::SketchObject", "Sketch013")
sketch14.AttachmentSupport = (doc.getObject("XY_Plane"), [""])
sketch14.MapMode = "FlatFace"
sketch14.AttachmentOffset = App.Placement(App.Vector(0, 0, -10), App.Rotation())
sketch14.addGeometry(Part.Circle(App.Vector(0, 0, 0), App.Vector(0, 0, 1), 60), False)
sketch14.addConstraint([
    Sketcher.Constraint("Coincident", 0, 3, -1, 1),
    Sketcher.Constraint("Diameter", 0, Q("120 mm")),
])
doc.recompute()
hole2 = body.newObject("PartDesign::Hole", "Hole001")
hole2.Profile = sketch14
hole2.ThreadType = "None"
hole2.Diameter = 120
hole2.DepthType = "ThroughAll"
hole2.Reversed = True

doc.recompute()
